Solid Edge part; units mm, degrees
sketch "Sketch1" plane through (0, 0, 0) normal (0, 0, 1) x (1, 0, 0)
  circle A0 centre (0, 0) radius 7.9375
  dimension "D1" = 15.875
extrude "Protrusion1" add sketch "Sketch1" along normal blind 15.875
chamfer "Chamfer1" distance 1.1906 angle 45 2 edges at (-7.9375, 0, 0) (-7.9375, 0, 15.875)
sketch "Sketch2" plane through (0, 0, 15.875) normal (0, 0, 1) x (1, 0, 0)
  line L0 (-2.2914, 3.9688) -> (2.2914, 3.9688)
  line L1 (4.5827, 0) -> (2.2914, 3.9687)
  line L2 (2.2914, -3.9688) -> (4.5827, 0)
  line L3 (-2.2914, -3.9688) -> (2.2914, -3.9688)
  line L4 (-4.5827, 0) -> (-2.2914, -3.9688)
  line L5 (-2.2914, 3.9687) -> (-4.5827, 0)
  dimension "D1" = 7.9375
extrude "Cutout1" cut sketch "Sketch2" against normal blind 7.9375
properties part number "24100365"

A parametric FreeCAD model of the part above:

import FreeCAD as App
import Part
import Sketcher

V = App.Vector
Q = App.Units.Quantity


def edges_at(feature, points):
    """Names of the edges that pass closest to the given points."""
    edges = feature.Shape.Edges
    near = lambda p: min(range(len(edges)), key=lambda i: edges[i].distToShape(Part.Vertex(*p))[0])
    return sorted({f"Edge{near(p) + 1}" for p in points})

doc = App.newDocument("Part")
body = doc.addObject("PartDesign::Body", "Body")

# Sketch on XY plane
sketch1 = body.newObject("Sketcher::SketchObject", "Sketch")
sketch1.AttachmentSupport = (doc.getObject("XY_Plane"), [""])
sketch1.MapMode = "FlatFace"
sketch1.addGeometry(Part.Circle(V(0, 0, 0), V(0, 0, 1), 8), False)
sketch1.addConstraint(Sketcher.Constraint("Coincident", 0, 3, -1, 1))
sketch1.addConstraint(Sketcher.Constraint("Diameter", 0, Q("0.625 in")))
pad1 = body.newObject("PartDesign::Pad", "Pad")
pad1.Profile = sketch1
pad1.Length = Q("0.625 in")
doc.recompute()

chamfer = body.newObject("PartDesign::Chamfer", "Chamfer")
chamfer.Base = (pad1, edges_at(pad1, [(-7.938, 0, 0), (-7.938, 0, 15.875)]))
chamfer.Size = Q("0.046874 in")

# Sketch on XY plane
sketch2 = body.newObject("Sketcher::SketchObject", "Sketch001")
sketch2.AttachmentSupport = (doc.getObject("XY_Plane"), [""])
sketch2.MapMode = "FlatFace"
sketch2.AttachmentOffset = App.Placement(V(0, 0, 0.625 * 25.4), App.Rotation())
sketch2.addGeometry(Part.LineSegment(V(2.3, 4, 0), V(-2.3, 4, 0)), False)
sketch2.addGeometry(Part.LineSegment(V(-2.3, 4, 0), V(-4.6, 0, 0)), False)
sketch2.addGeometry(Part.LineSegment(V(-4.6, 0, 0), V(-2.3, -4, 0)), False)
sketch2.addGeometry(Part.LineSegment(V(-2.3, -4, 0), V(2.3, -4, 0)), False)
sketch2.addGeometry(Part.LineSegment(V(2.3, -4, 0), V(4.6, 0, 0)), False)
sketch2.addGeometry(Part.LineSegment(V(4.6, 0, 0), V(2.3, 4, 0)), False)
sketch2.addConstraint(Sketcher.Constraint("Coincident", 0, 2, 1, 1))
sketch2.addConstraint(Sketcher.Constraint("Coincident", 1, 2, 2, 1))
sketch2.addConstraint(Sketcher.Constraint("Coincident", 2, 2, 3, 1))
sketch2.addConstraint(Sketcher.Constraint("Coincident", 3, 2, 4, 1))
sketch2.addConstraint(Sketcher.Constraint("Coincident", 4, 2, 5, 1))
sketch2.addConstraint(Sketcher.Constraint("Coincident", 5, 2, 0, 1))
sketch2.addConstraint(Sketcher.Constraint("Horizontal", 0))
sketch2.addConstraint(Sketcher.Constraint("Horizontal", 3))
sketch2.addConstraint(Sketcher.Constraint("Symmetric", 0, 2, 3, 2, -1, 1))
sketch2.addConstraint(Sketcher.Constraint("Symmetric", 1, 2, 4, 2, -1, 1))
sketch2.addConstraint(Sketcher.Constraint("PointOnObject", 1, 2, -1))
sketch2.addConstraint(Sketcher.Constraint("Parallel", 2, 5))
sketch2.addConstraint(Sketcher.Constraint("Vertical", 0, 2, 2, 2))
sketch2.addConstraint(Sketcher.Constraint("Angle", 1, Q("-119.999 deg")))
sketch2.addConstraint(Sketcher.Constraint("DistanceY", -1, 1, 0, 2, Q("0.156252 in")))
sketch2.addConstraint(Sketcher.Constraint("DistanceX", 0, 2, 0, 1, Q("4.5828 mm")))
pocket1 = body.newObject("PartDesign::Pocket", "Pocket")
pocket1.Profile = sketch2
pocket1.Length = Q("0.3125 in")

doc.recompute()
